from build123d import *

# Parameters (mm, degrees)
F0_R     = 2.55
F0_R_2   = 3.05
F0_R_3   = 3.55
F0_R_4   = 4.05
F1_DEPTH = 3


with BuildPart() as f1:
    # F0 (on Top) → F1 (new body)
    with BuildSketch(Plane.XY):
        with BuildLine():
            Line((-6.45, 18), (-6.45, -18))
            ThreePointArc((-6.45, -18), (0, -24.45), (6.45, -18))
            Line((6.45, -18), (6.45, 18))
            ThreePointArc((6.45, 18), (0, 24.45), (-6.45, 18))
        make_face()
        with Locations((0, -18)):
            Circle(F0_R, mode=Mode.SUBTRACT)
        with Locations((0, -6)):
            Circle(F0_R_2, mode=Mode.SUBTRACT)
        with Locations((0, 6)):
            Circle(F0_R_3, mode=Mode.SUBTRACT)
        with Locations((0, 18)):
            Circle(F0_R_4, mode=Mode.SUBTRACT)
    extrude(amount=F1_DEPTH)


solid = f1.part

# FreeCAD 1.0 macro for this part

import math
import FreeCAD as App
import Part
import Sketcher

V = App.Vector
Q = App.Units.Quantity

doc = App.newDocument("Part")
body = doc.addObject("PartDesign::Body", "Body")

# Sketch on XY plane
sketch1 = doc.addObject("Sketcher::SketchObject", "Sketch")
body.addObject(sketch1)
sketch1.AttachmentSupport = (doc.XY_Plane, [""])
sketch1.MapMode = "FlatFace"
sketch1.addGeometry([
    Part.LineSegment(V(-6.5, 18, 0), V(-6.5, -18, 0)),  # 0
    Part.ArcOfCircle(Part.Circle(V(0, -18, 0), V(0, 0, 1), 6.5), math.radians(180), math.radians(360)),  # 1
    Part.LineSegment(V(6.5, -18, 0), V(6.5, 18, 0)),  # 2
    Part.ArcOfCircle(Part.Circle(V(0, 18, 0), V(0, 0, 1), 6.5), math.radians(0), math.radians(180)),  # 3
    Part.Circle(V(0, -18, 0), V(0, 0, 1), 2.5),  # 4
    Part.Circle(V(0, -6, 0), V(0, 0, 1), 3),  # 5
    Part.Circle(V(0, 6, 0), V(0, 0, 1), 3.5),  # 6
    Part.Circle(V(0, 18, 0), V(0, 0, 1), 4),  # 7
], False)
sketch1.addConstraint([
    Sketcher.Constraint("Tangent", 0, 2, 1, 1),
    Sketcher.Constraint("Tangent", 1, 2, 2, 1),
    Sketcher.Constraint("Tangent", 2, 2, 3, 1),
    Sketcher.Constraint("Tangent", 3, 2, 0, 1),
    Sketcher.Constraint("Vertical", 0),
    Sketcher.Constraint("Vertical", 2),
    Sketcher.Constraint("Coincident", 4, 3, 1, 3),
    Sketcher.Constraint("Coincident", 7, 3, 3, 3),
    Sketcher.Constraint("Symmetric", 1, 3, 3, 3, -1, 1),
    Sketcher.Constraint("Symmetric", 5, 3, 6, 3, -1, 1),
    Sketcher.Constraint("PointOnObject", 5, 3, -2),
    Sketcher.Constraint("Diameter", 4, Q("5.1 mm")),
    Sketcher.Constraint("Diameter", 5, Q("6.1 mm")),
    Sketcher.Constraint("Diameter", 6, Q("7.1 mm")),
    Sketcher.Constraint("Diameter", 7, Q("8.1 mm")),
    Sketcher.Constraint("DistanceY", 0, 2, 0, 1, Q("36 mm")),
    Sketcher.Constraint("Radius", 1, Q("6.45 mm")),
    Sketcher.Constraint("DistanceY", 5, 3, -1, 1, Q("6 mm")),
])
pad1 = doc.addObject("PartDesign::Pad", "Pad")
body.addObject(pad1)
pad1.Profile = sketch1
pad1.Length = 3

doc.recompute()
